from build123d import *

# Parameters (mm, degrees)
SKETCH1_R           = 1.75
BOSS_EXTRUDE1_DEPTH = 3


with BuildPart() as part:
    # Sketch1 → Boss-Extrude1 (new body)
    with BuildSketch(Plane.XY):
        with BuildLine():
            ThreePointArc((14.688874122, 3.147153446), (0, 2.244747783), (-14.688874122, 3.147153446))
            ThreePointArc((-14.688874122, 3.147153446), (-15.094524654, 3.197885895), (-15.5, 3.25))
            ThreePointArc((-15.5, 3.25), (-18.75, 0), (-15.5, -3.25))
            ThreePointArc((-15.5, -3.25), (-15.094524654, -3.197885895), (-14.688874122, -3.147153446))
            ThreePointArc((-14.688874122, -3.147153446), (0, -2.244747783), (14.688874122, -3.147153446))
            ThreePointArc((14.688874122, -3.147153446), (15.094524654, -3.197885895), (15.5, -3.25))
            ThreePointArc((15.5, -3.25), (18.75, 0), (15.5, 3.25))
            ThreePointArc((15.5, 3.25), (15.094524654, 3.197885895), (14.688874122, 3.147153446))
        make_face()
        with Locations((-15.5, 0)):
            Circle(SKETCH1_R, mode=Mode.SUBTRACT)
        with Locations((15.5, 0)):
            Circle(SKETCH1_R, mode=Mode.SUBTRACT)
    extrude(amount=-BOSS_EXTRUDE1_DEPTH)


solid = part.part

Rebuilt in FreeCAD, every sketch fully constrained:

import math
import FreeCAD as App
import Part
import Sketcher
from FreeCAD import Vector
Q = App.Units.Quantity

doc = App.newDocument("Part")
body = doc.addObject("PartDesign::Body", "Body")

sketch1 = body.newObject("Sketcher::SketchObject", "Sketch")
sketch1.AttachmentSupport = (doc.getObject("XY_Plane"), [""])
sketch1.MapMode = "FlatFace"
sketch1.addGeometry(Part.ArcOfCircle(Part.Circle(Vector(0, 122.2, 0), Vector(0, 0, 1), 120), math.radians(-97.03), math.radians(-82.97)), False)
sketch1.addGeometry(Part.ArcOfCircle(Part.Circle(Vector(0, 122.2, 0), Vector(0, 0, 1), 120), math.radians(-97.42), math.radians(-97.03)), False)
sketch1.addGeometry(Part.ArcOfCircle(Part.Circle(Vector(-15.5, 0, 0), Vector(0, 0, 1), 3.2), math.radians(90), math.radians(270)), False)
sketch1.addGeometry(Part.ArcOfCircle(Part.Circle(Vector(0, -122.2, 0), Vector(0, 0, 1), 120), math.radians(97.03), math.radians(97.42)), False)
sketch1.addGeometry(Part.ArcOfCircle(Part.Circle(Vector(0, -122.2, 0), Vector(0, 0, 1), 120), math.radians(82.97), math.radians(97.03)), False)
sketch1.addGeometry(Part.ArcOfCircle(Part.Circle(Vector(0, -122.2, 0), Vector(0, 0, 1), 120), math.radians(82.58), math.radians(82.97)), False)
sketch1.addGeometry(Part.ArcOfCircle(Part.Circle(Vector(15.5, 0, 0), Vector(0, 0, 1), 3.2), math.radians(-90), math.radians(90)), False)
sketch1.addGeometry(Part.ArcOfCircle(Part.Circle(Vector(0, 122.2, 0), Vector(0, 0, 1), 120), math.radians(-82.97), math.radians(-82.58)), False)
sketch1.addGeometry(Part.Circle(Vector(-15.5, 0, 0), Vector(0, 0, 1), 1.8), False)
sketch1.addGeometry(Part.Circle(Vector(15.5, 0, 0), Vector(0, 0, 1), 1.8), False)
sketch1.addConstraint(Sketcher.Constraint("Tangent", 0, 1, 1, 2))
sketch1.addConstraint(Sketcher.Constraint("Coincident", 1, 1, 2, 1))
sketch1.addConstraint(Sketcher.Constraint("Coincident", 2, 2, 3, 2))
sketch1.addConstraint(Sketcher.Constraint("Tangent", 3, 1, 4, 2))
sketch1.addConstraint(Sketcher.Constraint("Tangent", 4, 1, 5, 2))
sketch1.addConstraint(Sketcher.Constraint("Coincident", 5, 1, 6, 1))
sketch1.addConstraint(Sketcher.Constraint("Coincident", 6, 2, 7, 2))
sketch1.addConstraint(Sketcher.Constraint("Tangent", 7, 1, 0, 2))
sketch1.addConstraint(Sketcher.Constraint("Coincident", 5, 3, 3, 3))
sketch1.addConstraint(Sketcher.Constraint("Coincident", 7, 3, 1, 3))
sketch1.addConstraint(Sketcher.Constraint("Coincident", 8, 3, 2, 3))
sketch1.addConstraint(Sketcher.Constraint("Coincident", 9, 3, 6, 3))
sketch1.addConstraint(Sketcher.Constraint("Equal", 1, 3))
sketch1.addConstraint(Sketcher.Constraint("Equal", 2, 6))
sketch1.addConstraint(Sketcher.Constraint("Equal", 8, 9))
sketch1.addConstraint(Sketcher.Constraint("Symmetric", 1, 3, 3, 3, -1, 1))
sketch1.addConstraint(Sketcher.Constraint("Symmetric", 2, 3, 6, 3, -1, 1))
sketch1.addConstraint(Sketcher.Constraint("Symmetric", 3, 1, 4, 1, -2))
sketch1.addConstraint(Sketcher.Constraint("PointOnObject", 2, 3, -1))
sketch1.addConstraint(Sketcher.Constraint("Horizontal", 0, 1, 7, 1))
sketch1.addConstraint(Sketcher.Constraint("Vertical", 8, 3, 1, 1))
sketch1.addConstraint(Sketcher.Constraint("Vertical", 0, 1, 3, 1))
sketch1.addConstraint(Sketcher.Constraint("Radius", 0, Q("120 mm")))
sketch1.addConstraint(Sketcher.Constraint("Diameter", 8, Q("3.5 mm")))
sketch1.addConstraint(Sketcher.Constraint("Radius", 2, Q("3.25 mm")))
sketch1.addConstraint(Sketcher.Constraint("DistanceX", 2, 3, 6, 3, Q("31 mm")))
sketch1.addConstraint(Sketcher.Constraint("DistanceX", 0, 1, 1, 3, Q("14.688872 mm")))
pad1 = body.newObject("PartDesign::Pad", "Pad")
pad1.Profile = sketch1
pad1.Length = 3
pad1.Reversed = True

doc.recompute()
